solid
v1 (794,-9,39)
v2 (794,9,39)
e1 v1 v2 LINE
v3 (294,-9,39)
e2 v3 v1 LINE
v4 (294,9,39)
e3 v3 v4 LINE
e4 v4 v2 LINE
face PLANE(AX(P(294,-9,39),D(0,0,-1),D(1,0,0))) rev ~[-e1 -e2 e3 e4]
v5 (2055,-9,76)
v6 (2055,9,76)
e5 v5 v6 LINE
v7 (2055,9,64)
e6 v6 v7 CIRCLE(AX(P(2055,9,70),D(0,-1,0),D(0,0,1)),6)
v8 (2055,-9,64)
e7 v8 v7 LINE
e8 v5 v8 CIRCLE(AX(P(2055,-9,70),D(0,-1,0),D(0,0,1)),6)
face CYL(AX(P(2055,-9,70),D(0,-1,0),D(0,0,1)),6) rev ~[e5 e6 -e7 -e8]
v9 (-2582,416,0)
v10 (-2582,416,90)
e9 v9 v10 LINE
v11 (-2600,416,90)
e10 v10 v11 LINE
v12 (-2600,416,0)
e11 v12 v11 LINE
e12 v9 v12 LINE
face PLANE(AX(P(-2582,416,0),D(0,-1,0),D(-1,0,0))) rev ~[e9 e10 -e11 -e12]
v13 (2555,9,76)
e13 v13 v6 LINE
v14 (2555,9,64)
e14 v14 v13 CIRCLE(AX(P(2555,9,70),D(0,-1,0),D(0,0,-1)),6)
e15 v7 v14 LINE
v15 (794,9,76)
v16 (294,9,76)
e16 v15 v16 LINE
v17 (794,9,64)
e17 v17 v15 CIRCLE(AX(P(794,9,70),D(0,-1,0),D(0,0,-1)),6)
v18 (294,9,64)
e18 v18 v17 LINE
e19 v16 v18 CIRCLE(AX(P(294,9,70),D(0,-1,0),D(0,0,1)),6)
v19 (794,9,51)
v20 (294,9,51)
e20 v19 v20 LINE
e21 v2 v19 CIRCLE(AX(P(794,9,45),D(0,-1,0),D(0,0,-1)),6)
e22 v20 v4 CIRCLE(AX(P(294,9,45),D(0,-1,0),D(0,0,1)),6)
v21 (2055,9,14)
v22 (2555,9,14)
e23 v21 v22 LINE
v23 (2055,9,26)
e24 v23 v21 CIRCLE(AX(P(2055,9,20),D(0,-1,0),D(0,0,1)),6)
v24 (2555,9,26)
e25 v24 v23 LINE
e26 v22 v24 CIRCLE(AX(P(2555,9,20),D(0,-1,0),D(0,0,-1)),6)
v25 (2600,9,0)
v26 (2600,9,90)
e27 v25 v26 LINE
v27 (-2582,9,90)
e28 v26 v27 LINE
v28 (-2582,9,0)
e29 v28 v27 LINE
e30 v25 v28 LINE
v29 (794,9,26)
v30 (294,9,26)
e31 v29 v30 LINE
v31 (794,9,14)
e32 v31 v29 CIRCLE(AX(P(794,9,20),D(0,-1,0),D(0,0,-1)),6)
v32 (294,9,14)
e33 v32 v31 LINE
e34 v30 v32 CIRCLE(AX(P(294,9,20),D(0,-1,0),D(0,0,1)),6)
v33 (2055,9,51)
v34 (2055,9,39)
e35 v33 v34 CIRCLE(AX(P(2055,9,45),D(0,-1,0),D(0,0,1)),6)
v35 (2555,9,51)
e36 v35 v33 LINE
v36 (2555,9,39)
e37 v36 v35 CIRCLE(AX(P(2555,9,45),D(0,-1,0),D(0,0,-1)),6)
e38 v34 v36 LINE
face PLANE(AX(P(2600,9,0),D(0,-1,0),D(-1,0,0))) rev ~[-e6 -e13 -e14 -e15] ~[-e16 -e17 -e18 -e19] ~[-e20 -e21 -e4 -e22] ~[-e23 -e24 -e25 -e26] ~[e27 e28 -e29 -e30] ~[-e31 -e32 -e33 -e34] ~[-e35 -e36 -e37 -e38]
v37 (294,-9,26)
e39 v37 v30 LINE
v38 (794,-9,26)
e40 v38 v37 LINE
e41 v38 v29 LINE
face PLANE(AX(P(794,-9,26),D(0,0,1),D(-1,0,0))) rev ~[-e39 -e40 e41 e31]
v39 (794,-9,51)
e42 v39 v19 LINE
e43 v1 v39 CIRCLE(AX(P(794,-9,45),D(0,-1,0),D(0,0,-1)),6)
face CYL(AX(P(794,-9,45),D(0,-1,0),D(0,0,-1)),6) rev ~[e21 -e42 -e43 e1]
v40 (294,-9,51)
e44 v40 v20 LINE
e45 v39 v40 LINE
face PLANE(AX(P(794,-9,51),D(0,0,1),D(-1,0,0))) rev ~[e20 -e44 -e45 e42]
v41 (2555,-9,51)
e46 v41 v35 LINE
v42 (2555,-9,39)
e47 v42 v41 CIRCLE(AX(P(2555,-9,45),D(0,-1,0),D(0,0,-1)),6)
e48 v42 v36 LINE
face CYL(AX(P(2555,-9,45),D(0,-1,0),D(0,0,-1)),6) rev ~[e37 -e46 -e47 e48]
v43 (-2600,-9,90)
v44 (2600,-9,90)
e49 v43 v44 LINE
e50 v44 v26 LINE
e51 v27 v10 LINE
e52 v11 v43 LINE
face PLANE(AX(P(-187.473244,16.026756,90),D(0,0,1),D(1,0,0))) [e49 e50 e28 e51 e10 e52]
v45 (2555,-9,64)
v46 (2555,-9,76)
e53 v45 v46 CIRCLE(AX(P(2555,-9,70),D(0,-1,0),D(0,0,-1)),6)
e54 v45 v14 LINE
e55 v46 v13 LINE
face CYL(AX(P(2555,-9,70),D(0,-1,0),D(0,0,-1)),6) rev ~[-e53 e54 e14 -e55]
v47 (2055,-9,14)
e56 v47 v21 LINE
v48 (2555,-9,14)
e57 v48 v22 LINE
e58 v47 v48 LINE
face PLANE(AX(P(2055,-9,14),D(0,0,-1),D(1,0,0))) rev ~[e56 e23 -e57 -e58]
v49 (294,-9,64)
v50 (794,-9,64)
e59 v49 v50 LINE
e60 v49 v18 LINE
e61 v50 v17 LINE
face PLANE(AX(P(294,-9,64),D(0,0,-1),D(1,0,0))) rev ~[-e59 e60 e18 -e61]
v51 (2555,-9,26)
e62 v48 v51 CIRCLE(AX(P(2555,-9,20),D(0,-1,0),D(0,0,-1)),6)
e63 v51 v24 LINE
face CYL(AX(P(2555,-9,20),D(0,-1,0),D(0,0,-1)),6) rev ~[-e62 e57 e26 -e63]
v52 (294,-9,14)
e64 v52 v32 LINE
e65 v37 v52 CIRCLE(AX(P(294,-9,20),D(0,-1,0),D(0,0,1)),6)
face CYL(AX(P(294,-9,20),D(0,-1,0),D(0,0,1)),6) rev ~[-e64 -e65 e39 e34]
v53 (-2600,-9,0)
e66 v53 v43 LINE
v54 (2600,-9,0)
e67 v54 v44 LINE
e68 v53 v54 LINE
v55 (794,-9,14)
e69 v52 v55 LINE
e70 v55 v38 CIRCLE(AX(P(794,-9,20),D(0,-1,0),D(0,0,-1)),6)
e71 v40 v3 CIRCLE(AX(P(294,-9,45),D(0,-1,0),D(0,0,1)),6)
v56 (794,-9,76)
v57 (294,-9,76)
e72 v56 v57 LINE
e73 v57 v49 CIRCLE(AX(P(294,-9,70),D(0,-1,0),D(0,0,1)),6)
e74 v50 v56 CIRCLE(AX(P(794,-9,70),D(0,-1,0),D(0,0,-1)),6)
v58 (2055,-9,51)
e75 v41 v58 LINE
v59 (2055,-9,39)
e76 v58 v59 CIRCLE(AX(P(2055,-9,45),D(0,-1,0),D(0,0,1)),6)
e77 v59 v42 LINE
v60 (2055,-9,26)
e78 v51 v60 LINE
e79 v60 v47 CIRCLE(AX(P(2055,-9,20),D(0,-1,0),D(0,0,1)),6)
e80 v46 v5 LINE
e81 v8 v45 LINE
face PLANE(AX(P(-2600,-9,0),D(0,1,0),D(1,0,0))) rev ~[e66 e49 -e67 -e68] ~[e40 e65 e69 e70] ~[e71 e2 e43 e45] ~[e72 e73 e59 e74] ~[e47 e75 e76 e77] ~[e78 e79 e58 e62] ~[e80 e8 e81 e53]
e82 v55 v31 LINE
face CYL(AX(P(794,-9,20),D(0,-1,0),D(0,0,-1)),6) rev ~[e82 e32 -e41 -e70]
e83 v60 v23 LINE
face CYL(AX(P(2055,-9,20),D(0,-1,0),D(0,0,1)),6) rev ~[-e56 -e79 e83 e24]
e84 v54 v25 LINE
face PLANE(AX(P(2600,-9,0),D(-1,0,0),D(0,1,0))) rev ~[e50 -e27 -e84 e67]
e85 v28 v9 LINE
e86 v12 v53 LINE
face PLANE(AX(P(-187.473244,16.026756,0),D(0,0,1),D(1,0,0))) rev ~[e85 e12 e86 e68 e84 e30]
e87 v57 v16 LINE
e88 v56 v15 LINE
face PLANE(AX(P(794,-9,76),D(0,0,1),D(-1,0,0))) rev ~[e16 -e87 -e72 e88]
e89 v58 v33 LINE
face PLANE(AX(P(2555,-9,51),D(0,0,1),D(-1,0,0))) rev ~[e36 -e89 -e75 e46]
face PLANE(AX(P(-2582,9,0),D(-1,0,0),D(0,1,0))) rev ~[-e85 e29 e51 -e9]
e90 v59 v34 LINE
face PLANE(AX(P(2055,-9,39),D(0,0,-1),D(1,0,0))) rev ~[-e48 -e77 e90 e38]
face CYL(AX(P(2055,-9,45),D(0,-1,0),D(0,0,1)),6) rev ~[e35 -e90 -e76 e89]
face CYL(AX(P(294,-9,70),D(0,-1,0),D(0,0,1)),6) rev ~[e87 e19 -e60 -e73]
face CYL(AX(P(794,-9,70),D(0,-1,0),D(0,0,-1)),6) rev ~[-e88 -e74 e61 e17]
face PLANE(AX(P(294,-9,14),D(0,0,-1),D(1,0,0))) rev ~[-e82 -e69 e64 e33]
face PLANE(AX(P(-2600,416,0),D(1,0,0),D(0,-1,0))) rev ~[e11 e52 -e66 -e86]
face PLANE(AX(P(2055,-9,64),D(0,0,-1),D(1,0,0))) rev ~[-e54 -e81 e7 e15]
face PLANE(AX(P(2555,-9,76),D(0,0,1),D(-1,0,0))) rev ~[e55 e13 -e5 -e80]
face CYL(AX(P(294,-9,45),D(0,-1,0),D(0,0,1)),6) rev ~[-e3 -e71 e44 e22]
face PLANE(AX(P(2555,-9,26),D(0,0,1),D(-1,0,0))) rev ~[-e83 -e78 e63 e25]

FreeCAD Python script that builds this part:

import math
import FreeCAD as App
import Part
import Sketcher

V = App.Vector
Q = App.Units.Quantity


def add_polygon(sketch, points):
    """Adds a closed chain of lines whose ends are joined by coincident constraints."""
    first, n = sketch.GeometryCount, len(points)
    for a, b in zip(points, points[1:] + points[:1]):
        sketch.addGeometry(Part.LineSegment(App.Vector(*a, 0), App.Vector(*b, 0)), False)
    for i in range(n):
        sketch.addConstraint(Sketcher.Constraint("Coincident", first + i, 2, first + (i + 1) % n, 1))

doc = App.newDocument("Part")
body = doc.addObject("PartDesign::Body", "Body")

sketch1 = doc.addObject("Sketcher::SketchObject", "Sketch")
body.addObject(sketch1)
sketch1.AttachmentSupport = (doc.XY_Plane, [""])
sketch1.MapMode = "FlatFace"
add_polygon(sketch1, [(2600, -9), (2600, 9), (-2582, 9), (-2582, 416), (-2600, 416), (-2600, -9)])
sketch1.addConstraint(Sketcher.Constraint("Vertical", 0))
sketch1.addConstraint(Sketcher.Constraint("Horizontal", 1))
sketch1.addConstraint(Sketcher.Constraint("Vertical", 2))
sketch1.addConstraint(Sketcher.Constraint("Horizontal", 3))
sketch1.addConstraint(Sketcher.Constraint("Vertical", 4))
sketch1.addConstraint(Sketcher.Constraint("Horizontal", 5))
sketch1.addConstraint(Sketcher.Constraint("Symmetric", 0, 2, 4, 2, -1, 1))
sketch1.addConstraint(Sketcher.Constraint("Equal", 3, 0))
sketch1.addConstraint(Sketcher.Constraint("DistanceX", 1, 2, 1, 1, Q("5182 mm")))
sketch1.addConstraint(Sketcher.Constraint("DistanceX", 3, 2, 3, 1, Q("18 mm")))
sketch1.addConstraint(Sketcher.Constraint("DistanceY", 2, 1, 2, 2, Q("407 mm")))
pad1 = doc.addObject("PartDesign::Pad", "Pad")
body.addObject(pad1)
pad1.Profile = sketch1
pad1.Length = 90

sketch2 = doc.addObject("Sketcher::SketchObject", "Sketch001")
body.addObject(sketch2)
sketch2.AttachmentSupport = (doc.XZ_Plane, [""])
sketch2.MapMode = "FlatFace"
sketch2.AttachmentOffset = App.Placement(V(0, 0, 9), App.Rotation())
sketch2.addGeometry(Part.LineSegment(V(2555, 76, 0), V(2055, 76, 0)), False)
sketch2.addGeometry(Part.ArcOfCircle(Part.Circle(V(2055, 70, 0), V(0, 0, 1), 6), math.radians(90), math.radians(270)), False)
sketch2.addGeometry(Part.LineSegment(V(2055, 64, 0), V(2555, 64, 0)), False)
sketch2.addGeometry(Part.ArcOfCircle(Part.Circle(V(2555, 70, 0), V(0, 0, 1), 6), math.radians(-90), math.radians(90)), False)
sketch2.addGeometry(Part.LineSegment(V(2555, 51, 0), V(2055, 51, 0)), False)
sketch2.addGeometry(Part.ArcOfCircle(Part.Circle(V(2055, 45, 0), V(0, 0, 1), 6), math.radians(90), math.radians(270)), False)
sketch2.addGeometry(Part.LineSegment(V(2055, 39, 0), V(2555, 39, 0)), False)
sketch2.addGeometry(Part.ArcOfCircle(Part.Circle(V(2555, 45, 0), V(0, 0, 1), 6), math.radians(-90), math.radians(90)), False)
sketch2.addGeometry(Part.LineSegment(V(2555, 26, 0), V(2055, 26, 0)), False)
sketch2.addGeometry(Part.ArcOfCircle(Part.Circle(V(2055, 20, 0), V(0, 0, 1), 6), math.radians(90), math.radians(270)), False)
sketch2.addGeometry(Part.LineSegment(V(2055, 14, 0), V(2555, 14, 0)), False)
sketch2.addGeometry(Part.ArcOfCircle(Part.Circle(V(2555, 20, 0), V(0, 0, 1), 6), math.radians(-90), math.radians(90)), False)
sketch2.addGeometry(Part.LineSegment(V(794, 76, 0), V(294, 76, 0)), False)
sketch2.addGeometry(Part.ArcOfCircle(Part.Circle(V(294, 70, 0), V(0, 0, 1), 6), math.radians(90), math.radians(270)), False)
sketch2.addGeometry(Part.LineSegment(V(294, 64, 0), V(794, 64, 0)), False)
sketch2.addGeometry(Part.ArcOfCircle(Part.Circle(V(794, 70, 0), V(0, 0, 1), 6), math.radians(-90), math.radians(90)), False)
sketch2.addGeometry(Part.LineSegment(V(794, 51, 0), V(294, 51, 0)), False)
sketch2.addGeometry(Part.ArcOfCircle(Part.Circle(V(294, 45, 0), V(0, 0, 1), 6), math.radians(90), math.radians(270)), False)
sketch2.addGeometry(Part.LineSegment(V(294, 39, 0), V(794, 39, 0)), False)
sketch2.addGeometry(Part.ArcOfCircle(Part.Circle(V(794, 45, 0), V(0, 0, 1), 6), math.radians(-90), math.radians(90)), False)
sketch2.addGeometry(Part.LineSegment(V(794, 26, 0), V(294, 26, 0)), False)
sketch2.addGeometry(Part.ArcOfCircle(Part.Circle(V(294, 20, 0), V(0, 0, 1), 6), math.radians(90), math.radians(270)), False)
sketch2.addGeometry(Part.LineSegment(V(294, 14, 0), V(794, 14, 0)), False)
sketch2.addGeometry(Part.ArcOfCircle(Part.Circle(V(794, 20, 0), V(0, 0, 1), 6), math.radians(-90), math.radians(90)), False)
sketch2.addConstraint(Sketcher.Constraint("Tangent", 0, 2, 1, 1))
sketch2.addConstraint(Sketcher.Constraint("Tangent", 1, 2, 2, 1))
sketch2.addConstraint(Sketcher.Constraint("Tangent", 2, 2, 3, 1))
sketch2.addConstraint(Sketcher.Constraint("Tangent", 3, 2, 0, 1))
sketch2.addConstraint(Sketcher.Constraint("Tangent", 4, 2, 5, 1))
sketch2.addConstraint(Sketcher.Constraint("Tangent", 5, 2, 6, 1))
sketch2.addConstraint(Sketcher.Constraint("Tangent", 6, 2, 7, 1))
sketch2.addConstraint(Sketcher.Constraint("Tangent", 7, 2, 4, 1))
sketch2.addConstraint(Sketcher.Constraint("Tangent", 8, 2, 9, 1))
sketch2.addConstraint(Sketcher.Constraint("Tangent", 9, 2, 10, 1))
sketch2.addConstraint(Sketcher.Constraint("Tangent", 10, 2, 11, 1))
sketch2.addConstraint(Sketcher.Constraint("Tangent", 11, 2, 8, 1))
sketch2.addConstraint(Sketcher.Constraint("Tangent", 12, 2, 13, 1))
sketch2.addConstraint(Sketcher.Constraint("Tangent", 13, 2, 14, 1))
sketch2.addConstraint(Sketcher.Constraint("Tangent", 14, 2, 15, 1))
sketch2.addConstraint(Sketcher.Constraint("Tangent", 15, 2, 12, 1))
sketch2.addConstraint(Sketcher.Constraint("Tangent", 16, 2, 17, 1))
sketch2.addConstraint(Sketcher.Constraint("Tangent", 17, 2, 18, 1))
sketch2.addConstraint(Sketcher.Constraint("Tangent", 18, 2, 19, 1))
sketch2.addConstraint(Sketcher.Constraint("Tangent", 19, 2, 16, 1))
sketch2.addConstraint(Sketcher.Constraint("Tangent", 20, 2, 21, 1))
sketch2.addConstraint(Sketcher.Constraint("Tangent", 21, 2, 22, 1))
sketch2.addConstraint(Sketcher.Constraint("Tangent", 22, 2, 23, 1))
sketch2.addConstraint(Sketcher.Constraint("Tangent", 23, 2, 20, 1))
sketch2.addConstraint(Sketcher.Constraint("Horizontal", 0))
sketch2.addConstraint(Sketcher.Constraint("Horizontal", 2))
sketch2.addConstraint(Sketcher.Constraint("Horizontal", 4))
sketch2.addConstraint(Sketcher.Constraint("Horizontal", 6))
sketch2.addConstraint(Sketcher.Constraint("Horizontal", 8))
sketch2.addConstraint(Sketcher.Constraint("Horizontal", 10))
sketch2.addConstraint(Sketcher.Constraint("Horizontal", 12))
sketch2.addConstraint(Sketcher.Constraint("Horizontal", 14))
sketch2.addConstraint(Sketcher.Constraint("Horizontal", 16))
sketch2.addConstraint(Sketcher.Constraint("Horizontal", 18))
sketch2.addConstraint(Sketcher.Constraint("Horizontal", 20))
sketch2.addConstraint(Sketcher.Constraint("Horizontal", 22))
sketch2.addConstraint(Sketcher.Constraint("Equal", 3, 5))
sketch2.addConstraint(Sketcher.Constraint("Equal", 7, 9))
sketch2.addConstraint(Sketcher.Constraint("Equal", 11, 13))
sketch2.addConstraint(Sketcher.Constraint("Equal", 15, 17))
sketch2.addConstraint(Sketcher.Constraint("Equal", 19, 21))
sketch2.addConstraint(Sketcher.Constraint("Horizontal", 3, 3, 13, 3))
sketch2.addConstraint(Sketcher.Constraint("Horizontal", 7, 3, 17, 3))
sketch2.addConstraint(Sketcher.Constraint("Horizontal", 11, 3, 21, 3))
sketch2.addConstraint(Sketcher.Constraint("Vertical", 1, 3, 5, 3))
sketch2.addConstraint(Sketcher.Constraint("Vertical", 3, 3, 7, 3))
sketch2.addConstraint(Sketcher.Constraint("Vertical", 5, 3, 9, 3))
sketch2.addConstraint(Sketcher.Constraint("Vertical", 7, 3, 11, 3))
sketch2.addConstraint(Sketcher.Constraint("Vertical", 13, 3, 17, 3))
sketch2.addConstraint(Sketcher.Constraint("Vertical", 15, 3, 19, 3))
sketch2.addConstraint(Sketcher.Constraint("Vertical", 17, 3, 21, 3))
sketch2.addConstraint(Sketcher.Constraint("Vertical", 19, 3, 23, 3))
sketch2.addConstraint(Sketcher.Constraint("Equal", 10, 12))
sketch2.addConstraint(Sketcher.Constraint("Radius", 1, Q("6 mm")))
sketch2.addConstraint(Sketcher.Constraint("DistanceX", 0, 2, 0, 1, Q("500 mm")))
sketch2.addConstraint(Sketcher.Constraint("DistanceX", -1, 1, 1, 3, Q("2055 mm")))
sketch2.addConstraint(Sketcher.Constraint("DistanceY", -1, 1, 1, 3, Q("70 mm")))
sketch2.addConstraint(Sketcher.Constraint("DistanceY", -1, 1, 5, 3, Q("45 mm")))
sketch2.addConstraint(Sketcher.Constraint("DistanceY", -1, 1, 9, 3, Q("20 mm")))
sketch2.addConstraint(Sketcher.Constraint("DistanceX", -1, 1, 13, 3, Q("294 mm")))
pocket1 = doc.addObject("PartDesign::Pocket", "Pocket")
body.addObject(pocket1)
pocket1.Profile = sketch2
pocket1.Length = 18

doc.recompute()
